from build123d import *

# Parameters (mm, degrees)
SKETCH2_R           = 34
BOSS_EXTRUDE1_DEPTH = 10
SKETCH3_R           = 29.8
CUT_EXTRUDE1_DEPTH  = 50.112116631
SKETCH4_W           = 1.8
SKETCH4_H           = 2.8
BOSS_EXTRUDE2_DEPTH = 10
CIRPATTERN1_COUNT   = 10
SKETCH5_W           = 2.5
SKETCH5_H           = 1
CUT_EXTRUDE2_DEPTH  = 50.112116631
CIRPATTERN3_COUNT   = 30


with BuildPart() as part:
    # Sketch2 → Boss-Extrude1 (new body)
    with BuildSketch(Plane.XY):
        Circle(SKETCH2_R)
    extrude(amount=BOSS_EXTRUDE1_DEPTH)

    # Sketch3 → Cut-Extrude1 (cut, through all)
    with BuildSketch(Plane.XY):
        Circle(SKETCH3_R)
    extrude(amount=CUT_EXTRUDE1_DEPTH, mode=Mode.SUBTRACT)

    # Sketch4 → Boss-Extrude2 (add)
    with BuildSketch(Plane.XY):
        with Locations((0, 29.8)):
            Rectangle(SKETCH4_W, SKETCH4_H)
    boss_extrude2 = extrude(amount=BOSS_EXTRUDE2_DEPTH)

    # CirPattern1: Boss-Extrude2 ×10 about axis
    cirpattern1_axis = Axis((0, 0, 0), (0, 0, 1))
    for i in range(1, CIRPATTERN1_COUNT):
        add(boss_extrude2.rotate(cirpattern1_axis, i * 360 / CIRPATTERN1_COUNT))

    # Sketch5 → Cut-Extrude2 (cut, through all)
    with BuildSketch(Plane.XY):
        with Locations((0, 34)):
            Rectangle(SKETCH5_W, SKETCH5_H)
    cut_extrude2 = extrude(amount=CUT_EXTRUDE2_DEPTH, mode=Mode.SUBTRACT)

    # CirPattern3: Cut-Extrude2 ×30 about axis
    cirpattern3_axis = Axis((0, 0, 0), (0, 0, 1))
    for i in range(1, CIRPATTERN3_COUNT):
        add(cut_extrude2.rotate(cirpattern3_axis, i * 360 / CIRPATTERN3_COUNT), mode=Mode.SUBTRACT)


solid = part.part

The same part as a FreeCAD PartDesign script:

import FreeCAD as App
import Part
import Sketcher

doc = App.newDocument("Part")
body = doc.addObject("PartDesign::Body", "Body")

sketch1 = body.newObject("Sketcher::SketchObject", "Sketch")
sketch1.AttachmentSupport = (doc.getObject("XY_Plane"), [""])
sketch1.MapMode = "FlatFace"
sketch1.addGeometry(Part.Circle(App.Vector(0, 0, 0), App.Vector(0, 0, 1), 34), False)
sketch1.addConstraint([
    Sketcher.Constraint("Coincident", 0, 3, -1, 1),
    Sketcher.Constraint("Diameter", 0, 68.0),
])
pad1 = body.newObject("PartDesign::Pad", "Pad")
pad1.Profile = sketch1
pad1.Length = 10

sketch2 = body.newObject("Sketcher::SketchObject", "Sketch001")
sketch2.AttachmentSupport = (doc.getObject("XY_Plane"), [""])
sketch2.MapMode = "FlatFace"
sketch2.addGeometry(Part.Circle(App.Vector(0, 0, 0), App.Vector(0, 0, 1), 30), False)
sketch2.addConstraint([
    Sketcher.Constraint("Coincident", 0, 3, -1, 1),
    Sketcher.Constraint("Diameter", 0, 59.6),
])
pocket1 = body.newObject("PartDesign::Pocket", "Pocket")
pocket1.Profile = sketch2
pocket1.Type = "ThroughAll"
pocket1.Reversed = True

sketch3 = body.newObject("Sketcher::SketchObject", "Sketch002")
sketch3.AttachmentSupport = (doc.getObject("XY_Plane"), [""])
sketch3.MapMode = "FlatFace"
sketch3.addGeometry([
    Part.LineSegment(App.Vector(-0.9, 31.2, 0), App.Vector(-0.9, 28.4, 0)),
    Part.LineSegment(App.Vector(-0.9, 28.4, 0), App.Vector(0.9, 28.4, 0)),
    Part.LineSegment(App.Vector(0.9, 28.4, 0), App.Vector(0.9, 31.2, 0)),
    Part.LineSegment(App.Vector(0.9, 31.2, 0), App.Vector(-0.9, 31.2, 0)),
], False)
sketch3.addConstraint([
    Sketcher.Constraint("Coincident", 0, 2, 1, 1),
    Sketcher.Constraint("Coincident", 1, 2, 2, 1),
    Sketcher.Constraint("Coincident", 2, 2, 3, 1),
    Sketcher.Constraint("Coincident", 3, 2, 0, 1),
    Sketcher.Constraint("Vertical", 0),
    Sketcher.Constraint("Horizontal", 1),
    Sketcher.Constraint("Vertical", 2),
    Sketcher.Constraint("Horizontal", 3),
    Sketcher.Constraint("DistanceX", 1, 1, 1, 2, 1.8),
    Sketcher.Constraint("DistanceY", 0, 2, 0, 1, 2.8),
    Sketcher.Constraint("DistanceX", 0, 2, -1, 1, 0.9),
    Sketcher.Constraint("DistanceY", -1, 1, 0, 2, 28.4),
])
pad2 = body.newObject("PartDesign::Pad", "Pad001")
pad2.Profile = sketch3
pad2.Length = 10
doc.recompute()

polarpattern = body.newObject("PartDesign::PolarPattern", "PolarPattern")
polarpattern.Originals = [pad2]
polarpattern.Axis = (doc.getObject("Z_Axis"), [""])
polarpattern.Angle = 360
polarpattern.Occurrences = 10
body.Tip = polarpattern

sketch4 = body.newObject("Sketcher::SketchObject", "Sketch003")
sketch4.AttachmentSupport = (doc.getObject("XY_Plane"), [""])
sketch4.MapMode = "FlatFace"
sketch4.addGeometry([
    Part.LineSegment(App.Vector(-1.2, 34.5, 0), App.Vector(-1.2, 33.5, 0)),
    Part.LineSegment(App.Vector(-1.2, 33.5, 0), App.Vector(1.2, 33.5, 0)),
    Part.LineSegment(App.Vector(1.2, 33.5, 0), App.Vector(1.2, 34.5, 0)),
    Part.LineSegment(App.Vector(1.2, 34.5, 0), App.Vector(-1.2, 34.5, 0)),
], False)
sketch4.addConstraint([
    Sketcher.Constraint("Coincident", 0, 2, 1, 1),
    Sketcher.Constraint("Coincident", 1, 2, 2, 1),
    Sketcher.Constraint("Coincident", 2, 2, 3, 1),
    Sketcher.Constraint("Coincident", 3, 2, 0, 1),
    Sketcher.Constraint("Vertical", 0),
    Sketcher.Constraint("Horizontal", 1),
    Sketcher.Constraint("Vertical", 2),
    Sketcher.Constraint("Horizontal", 3),
    Sketcher.Constraint("DistanceY", 0, 2, 0, 1, 1.0),
    Sketcher.Constraint("DistanceX", 1, 1, 1, 2, 2.5),
    Sketcher.Constraint("DistanceY", -1, 1, 0, 2, 33.5),
    Sketcher.Constraint("DistanceX", 0, 2, -1, 1, 1.25),
])
pocket2 = body.newObject("PartDesign::Pocket", "Pocket001")
pocket2.Profile = sketch4
pocket2.Type = "ThroughAll"
pocket2.Reversed = True
doc.recompute()

polarpattern2 = body.newObject("PartDesign::PolarPattern", "PolarPattern001")
polarpattern2.Originals = [pocket2]
polarpattern2.Axis = (doc.getObject("Z_Axis"), [""])
polarpattern2.Angle = 360
polarpattern2.Occurrences = 30
body.Tip = polarpattern2

doc.recompute()
